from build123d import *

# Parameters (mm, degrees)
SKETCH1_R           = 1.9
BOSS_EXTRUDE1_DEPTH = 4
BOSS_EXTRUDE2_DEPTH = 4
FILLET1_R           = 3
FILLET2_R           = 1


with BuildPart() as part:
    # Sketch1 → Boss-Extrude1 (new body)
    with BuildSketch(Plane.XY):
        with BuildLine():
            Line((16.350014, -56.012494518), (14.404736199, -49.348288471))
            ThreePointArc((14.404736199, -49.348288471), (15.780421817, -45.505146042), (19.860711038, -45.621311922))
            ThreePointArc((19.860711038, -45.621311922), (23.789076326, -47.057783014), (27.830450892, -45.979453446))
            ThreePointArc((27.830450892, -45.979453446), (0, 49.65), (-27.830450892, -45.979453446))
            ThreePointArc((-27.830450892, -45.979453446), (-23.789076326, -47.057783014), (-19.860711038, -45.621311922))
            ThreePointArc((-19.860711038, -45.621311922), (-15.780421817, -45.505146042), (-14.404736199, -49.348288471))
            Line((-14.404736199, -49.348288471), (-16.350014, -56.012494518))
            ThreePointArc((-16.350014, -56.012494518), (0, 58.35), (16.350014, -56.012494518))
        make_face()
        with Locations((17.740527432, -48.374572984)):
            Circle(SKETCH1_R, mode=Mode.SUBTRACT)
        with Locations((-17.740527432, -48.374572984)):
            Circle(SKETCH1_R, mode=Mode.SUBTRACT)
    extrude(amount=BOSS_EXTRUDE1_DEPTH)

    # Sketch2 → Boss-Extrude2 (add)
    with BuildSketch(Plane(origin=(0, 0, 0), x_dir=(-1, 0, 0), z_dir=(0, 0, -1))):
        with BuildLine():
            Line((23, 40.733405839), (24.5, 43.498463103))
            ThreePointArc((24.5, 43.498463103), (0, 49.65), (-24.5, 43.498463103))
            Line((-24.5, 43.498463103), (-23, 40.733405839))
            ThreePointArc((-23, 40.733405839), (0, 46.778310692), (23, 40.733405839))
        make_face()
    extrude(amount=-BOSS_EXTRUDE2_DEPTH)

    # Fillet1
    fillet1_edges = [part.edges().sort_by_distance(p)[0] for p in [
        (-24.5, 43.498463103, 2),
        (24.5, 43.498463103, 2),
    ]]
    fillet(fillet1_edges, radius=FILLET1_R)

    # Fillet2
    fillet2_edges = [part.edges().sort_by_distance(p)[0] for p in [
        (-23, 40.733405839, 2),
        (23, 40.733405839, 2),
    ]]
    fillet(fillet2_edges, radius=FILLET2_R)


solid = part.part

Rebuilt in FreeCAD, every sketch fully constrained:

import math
import FreeCAD as App
import Part
import Sketcher
from FreeCAD import Vector


def edges_at(feature, points):
    """Names of the edges that pass closest to the given points."""
    edges = feature.Shape.Edges
    near = lambda p: min(range(len(edges)), key=lambda i: edges[i].distToShape(Part.Vertex(*p))[0])
    return sorted({f"Edge{near(p) + 1}" for p in points})

doc = App.newDocument("Part")
body = doc.addObject("PartDesign::Body", "Body")

sketch1 = body.newObject("Sketcher::SketchObject", "Sketch")
sketch1.AttachmentSupport = (doc.getObject("XY_Plane"), [""])
sketch1.MapMode = "FlatFace"
sketch1.addGeometry([
    Part.LineSegment(Vector(14.4, -49.3, 0), Vector(16.4, -56, 0)),
    Part.ArcOfCircle(Part.Circle(Vector(0, 0, 0), Vector(0, 0, 1), 58.4), math.radians(-74), math.radians(254)),
    Part.LineSegment(Vector(-16.4, -56, 0), Vector(-14.4, -49.3, 0)),
    Part.ArcOfCircle(Part.Circle(Vector(-17.7, -48.4, 0), Vector(0, 0, 1), 3.5), math.radians(-16), math.radians(128)),
    Part.ArcOfCircle(Part.Circle(Vector(-24.1, -40.1, 0), Vector(0, 0, 1), 7), math.radians(-122), math.radians(-52)),
    Part.ArcOfCircle(Part.Circle(Vector(0, -2.2, 0), Vector(0, 0, 1), 51.9), math.radians(-58), math.radians(238)),
    Part.ArcOfCircle(Part.Circle(Vector(24.1, -40.1, 0), Vector(0, 0, 1), 7), math.radians(-128), math.radians(-58)),
    Part.ArcOfCircle(Part.Circle(Vector(17.7, -48.4, 0), Vector(0, 0, 1), 3.5), math.radians(52), math.radians(196)),
    Part.Circle(Vector(17.7, -48.4, 0), Vector(0, 0, 1), 1.9),
    Part.Circle(Vector(-17.7, -48.4, 0), Vector(0, 0, 1), 1.9),
], False)
sketch1.addConstraint([
    Sketcher.Constraint("Coincident", 0, 2, 1, 1),
    Sketcher.Constraint("Coincident", 1, 2, 2, 1),
    Sketcher.Constraint("Tangent", 2, 2, 3, 1),
    Sketcher.Constraint("Tangent", 3, 2, 4, 2),
    Sketcher.Constraint("Tangent", 4, 1, 5, 2),
    Sketcher.Constraint("Tangent", 5, 1, 6, 2),
    Sketcher.Constraint("Tangent", 6, 1, 7, 1),
    Sketcher.Constraint("Tangent", 7, 2, 0, 1),
    Sketcher.Constraint("Coincident", 1, 3, -1, 1),
    Sketcher.Constraint("Coincident", 8, 3, 7, 3),
    Sketcher.Constraint("Coincident", 9, 3, 3, 3),
    Sketcher.Constraint("Equal", 4, 6),
    Sketcher.Constraint("Equal", 3, 7),
    Sketcher.Constraint("Equal", 8, 9),
    Sketcher.Constraint("Symmetric", 4, 3, 6, 3, -2),
    Sketcher.Constraint("Symmetric", 2, 2, 7, 2, -2),
    Sketcher.Constraint("Diameter", 8, 3.8),
    Sketcher.Constraint("Radius", 1, 58.35),
    Sketcher.Constraint("Radius", 4, 6.95),
    Sketcher.Constraint("Radius", 3, 3.475),
    Sketcher.Constraint("Radius", 5, 51.864389),
    Sketcher.Constraint("DistanceY", 4, 3, 5, 3, 37.900401),
    Sketcher.Constraint("DistanceY", 2, 2, 4, 3, 9.233499),
    Sketcher.Constraint("DistanceY", 4, 3, -1, 1, 40.11479),
    Sketcher.Constraint("DistanceX", 3, 2, -1, 1, 19.860711),
])
pad1 = body.newObject("PartDesign::Pad", "Pad")
pad1.Profile = sketch1
pad1.Length = 4

sketch2 = body.newObject("Sketcher::SketchObject", "Sketch001")
sketch2.AttachmentSupport = (doc.getObject("XY_Plane"), [""])
sketch2.MapMode = "FlatFace"
sketch2.addGeometry([
    Part.LineSegment(Vector(-23, 40.7, 0), Vector(-24.5, 43.5, 0)),
    Part.ArcOfCircle(Part.Circle(Vector(0, -2.2, 0), Vector(0, 0, 1), 51.9), math.radians(62), math.radians(118)),
    Part.LineSegment(Vector(24.5, 43.5, 0), Vector(23, 40.7, 0)),
    Part.ArcOfCircle(Part.Circle(Vector(0, 0, 0), Vector(0, 0, 1), 46.8), math.radians(61), math.radians(119)),
], False)
sketch2.addConstraint([
    Sketcher.Constraint("Coincident", 0, 2, 1, 2),
    Sketcher.Constraint("Coincident", 1, 1, 2, 1),
    Sketcher.Constraint("Coincident", 2, 2, 3, 1),
    Sketcher.Constraint("Coincident", 3, 2, 0, 1),
    Sketcher.Constraint("Coincident", 3, 3, -1, 1),
    Sketcher.Constraint("Symmetric", 0, 2, 1, 1, -2),
    Sketcher.Constraint("Horizontal", 2, 2, 3, 2),
    Sketcher.Constraint("DistanceX", -1, 1, 2, 2, 23.0),
    Sketcher.Constraint("DistanceX", 0, 2, 1, 1, 49.0),
    Sketcher.Constraint("Radius", 1, 51.864389),
    Sketcher.Constraint("Radius", 3, 46.778311),
    Sketcher.Constraint("DistanceY", 1, 3, -1, 1, 2.214389),
])
pad2 = body.newObject("PartDesign::Pad", "Pad001")
pad2.Profile = sketch2
pad2.Length = 4
doc.recompute()

fillet = body.newObject("PartDesign::Fillet", "Fillet")
fillet.Base = (pad2, edges_at(pad2, [(-24.5, 43.498, 2), (24.5, 43.498, 2)]))
fillet.Radius = 3
doc.recompute()

fillet2 = body.newObject("PartDesign::Fillet", "Fillet001")
fillet2.Base = (fillet, edges_at(fillet, [(-23, 40.733, 2), (23, 40.733, 2)]))
fillet2.Radius = 1

doc.recompute()
